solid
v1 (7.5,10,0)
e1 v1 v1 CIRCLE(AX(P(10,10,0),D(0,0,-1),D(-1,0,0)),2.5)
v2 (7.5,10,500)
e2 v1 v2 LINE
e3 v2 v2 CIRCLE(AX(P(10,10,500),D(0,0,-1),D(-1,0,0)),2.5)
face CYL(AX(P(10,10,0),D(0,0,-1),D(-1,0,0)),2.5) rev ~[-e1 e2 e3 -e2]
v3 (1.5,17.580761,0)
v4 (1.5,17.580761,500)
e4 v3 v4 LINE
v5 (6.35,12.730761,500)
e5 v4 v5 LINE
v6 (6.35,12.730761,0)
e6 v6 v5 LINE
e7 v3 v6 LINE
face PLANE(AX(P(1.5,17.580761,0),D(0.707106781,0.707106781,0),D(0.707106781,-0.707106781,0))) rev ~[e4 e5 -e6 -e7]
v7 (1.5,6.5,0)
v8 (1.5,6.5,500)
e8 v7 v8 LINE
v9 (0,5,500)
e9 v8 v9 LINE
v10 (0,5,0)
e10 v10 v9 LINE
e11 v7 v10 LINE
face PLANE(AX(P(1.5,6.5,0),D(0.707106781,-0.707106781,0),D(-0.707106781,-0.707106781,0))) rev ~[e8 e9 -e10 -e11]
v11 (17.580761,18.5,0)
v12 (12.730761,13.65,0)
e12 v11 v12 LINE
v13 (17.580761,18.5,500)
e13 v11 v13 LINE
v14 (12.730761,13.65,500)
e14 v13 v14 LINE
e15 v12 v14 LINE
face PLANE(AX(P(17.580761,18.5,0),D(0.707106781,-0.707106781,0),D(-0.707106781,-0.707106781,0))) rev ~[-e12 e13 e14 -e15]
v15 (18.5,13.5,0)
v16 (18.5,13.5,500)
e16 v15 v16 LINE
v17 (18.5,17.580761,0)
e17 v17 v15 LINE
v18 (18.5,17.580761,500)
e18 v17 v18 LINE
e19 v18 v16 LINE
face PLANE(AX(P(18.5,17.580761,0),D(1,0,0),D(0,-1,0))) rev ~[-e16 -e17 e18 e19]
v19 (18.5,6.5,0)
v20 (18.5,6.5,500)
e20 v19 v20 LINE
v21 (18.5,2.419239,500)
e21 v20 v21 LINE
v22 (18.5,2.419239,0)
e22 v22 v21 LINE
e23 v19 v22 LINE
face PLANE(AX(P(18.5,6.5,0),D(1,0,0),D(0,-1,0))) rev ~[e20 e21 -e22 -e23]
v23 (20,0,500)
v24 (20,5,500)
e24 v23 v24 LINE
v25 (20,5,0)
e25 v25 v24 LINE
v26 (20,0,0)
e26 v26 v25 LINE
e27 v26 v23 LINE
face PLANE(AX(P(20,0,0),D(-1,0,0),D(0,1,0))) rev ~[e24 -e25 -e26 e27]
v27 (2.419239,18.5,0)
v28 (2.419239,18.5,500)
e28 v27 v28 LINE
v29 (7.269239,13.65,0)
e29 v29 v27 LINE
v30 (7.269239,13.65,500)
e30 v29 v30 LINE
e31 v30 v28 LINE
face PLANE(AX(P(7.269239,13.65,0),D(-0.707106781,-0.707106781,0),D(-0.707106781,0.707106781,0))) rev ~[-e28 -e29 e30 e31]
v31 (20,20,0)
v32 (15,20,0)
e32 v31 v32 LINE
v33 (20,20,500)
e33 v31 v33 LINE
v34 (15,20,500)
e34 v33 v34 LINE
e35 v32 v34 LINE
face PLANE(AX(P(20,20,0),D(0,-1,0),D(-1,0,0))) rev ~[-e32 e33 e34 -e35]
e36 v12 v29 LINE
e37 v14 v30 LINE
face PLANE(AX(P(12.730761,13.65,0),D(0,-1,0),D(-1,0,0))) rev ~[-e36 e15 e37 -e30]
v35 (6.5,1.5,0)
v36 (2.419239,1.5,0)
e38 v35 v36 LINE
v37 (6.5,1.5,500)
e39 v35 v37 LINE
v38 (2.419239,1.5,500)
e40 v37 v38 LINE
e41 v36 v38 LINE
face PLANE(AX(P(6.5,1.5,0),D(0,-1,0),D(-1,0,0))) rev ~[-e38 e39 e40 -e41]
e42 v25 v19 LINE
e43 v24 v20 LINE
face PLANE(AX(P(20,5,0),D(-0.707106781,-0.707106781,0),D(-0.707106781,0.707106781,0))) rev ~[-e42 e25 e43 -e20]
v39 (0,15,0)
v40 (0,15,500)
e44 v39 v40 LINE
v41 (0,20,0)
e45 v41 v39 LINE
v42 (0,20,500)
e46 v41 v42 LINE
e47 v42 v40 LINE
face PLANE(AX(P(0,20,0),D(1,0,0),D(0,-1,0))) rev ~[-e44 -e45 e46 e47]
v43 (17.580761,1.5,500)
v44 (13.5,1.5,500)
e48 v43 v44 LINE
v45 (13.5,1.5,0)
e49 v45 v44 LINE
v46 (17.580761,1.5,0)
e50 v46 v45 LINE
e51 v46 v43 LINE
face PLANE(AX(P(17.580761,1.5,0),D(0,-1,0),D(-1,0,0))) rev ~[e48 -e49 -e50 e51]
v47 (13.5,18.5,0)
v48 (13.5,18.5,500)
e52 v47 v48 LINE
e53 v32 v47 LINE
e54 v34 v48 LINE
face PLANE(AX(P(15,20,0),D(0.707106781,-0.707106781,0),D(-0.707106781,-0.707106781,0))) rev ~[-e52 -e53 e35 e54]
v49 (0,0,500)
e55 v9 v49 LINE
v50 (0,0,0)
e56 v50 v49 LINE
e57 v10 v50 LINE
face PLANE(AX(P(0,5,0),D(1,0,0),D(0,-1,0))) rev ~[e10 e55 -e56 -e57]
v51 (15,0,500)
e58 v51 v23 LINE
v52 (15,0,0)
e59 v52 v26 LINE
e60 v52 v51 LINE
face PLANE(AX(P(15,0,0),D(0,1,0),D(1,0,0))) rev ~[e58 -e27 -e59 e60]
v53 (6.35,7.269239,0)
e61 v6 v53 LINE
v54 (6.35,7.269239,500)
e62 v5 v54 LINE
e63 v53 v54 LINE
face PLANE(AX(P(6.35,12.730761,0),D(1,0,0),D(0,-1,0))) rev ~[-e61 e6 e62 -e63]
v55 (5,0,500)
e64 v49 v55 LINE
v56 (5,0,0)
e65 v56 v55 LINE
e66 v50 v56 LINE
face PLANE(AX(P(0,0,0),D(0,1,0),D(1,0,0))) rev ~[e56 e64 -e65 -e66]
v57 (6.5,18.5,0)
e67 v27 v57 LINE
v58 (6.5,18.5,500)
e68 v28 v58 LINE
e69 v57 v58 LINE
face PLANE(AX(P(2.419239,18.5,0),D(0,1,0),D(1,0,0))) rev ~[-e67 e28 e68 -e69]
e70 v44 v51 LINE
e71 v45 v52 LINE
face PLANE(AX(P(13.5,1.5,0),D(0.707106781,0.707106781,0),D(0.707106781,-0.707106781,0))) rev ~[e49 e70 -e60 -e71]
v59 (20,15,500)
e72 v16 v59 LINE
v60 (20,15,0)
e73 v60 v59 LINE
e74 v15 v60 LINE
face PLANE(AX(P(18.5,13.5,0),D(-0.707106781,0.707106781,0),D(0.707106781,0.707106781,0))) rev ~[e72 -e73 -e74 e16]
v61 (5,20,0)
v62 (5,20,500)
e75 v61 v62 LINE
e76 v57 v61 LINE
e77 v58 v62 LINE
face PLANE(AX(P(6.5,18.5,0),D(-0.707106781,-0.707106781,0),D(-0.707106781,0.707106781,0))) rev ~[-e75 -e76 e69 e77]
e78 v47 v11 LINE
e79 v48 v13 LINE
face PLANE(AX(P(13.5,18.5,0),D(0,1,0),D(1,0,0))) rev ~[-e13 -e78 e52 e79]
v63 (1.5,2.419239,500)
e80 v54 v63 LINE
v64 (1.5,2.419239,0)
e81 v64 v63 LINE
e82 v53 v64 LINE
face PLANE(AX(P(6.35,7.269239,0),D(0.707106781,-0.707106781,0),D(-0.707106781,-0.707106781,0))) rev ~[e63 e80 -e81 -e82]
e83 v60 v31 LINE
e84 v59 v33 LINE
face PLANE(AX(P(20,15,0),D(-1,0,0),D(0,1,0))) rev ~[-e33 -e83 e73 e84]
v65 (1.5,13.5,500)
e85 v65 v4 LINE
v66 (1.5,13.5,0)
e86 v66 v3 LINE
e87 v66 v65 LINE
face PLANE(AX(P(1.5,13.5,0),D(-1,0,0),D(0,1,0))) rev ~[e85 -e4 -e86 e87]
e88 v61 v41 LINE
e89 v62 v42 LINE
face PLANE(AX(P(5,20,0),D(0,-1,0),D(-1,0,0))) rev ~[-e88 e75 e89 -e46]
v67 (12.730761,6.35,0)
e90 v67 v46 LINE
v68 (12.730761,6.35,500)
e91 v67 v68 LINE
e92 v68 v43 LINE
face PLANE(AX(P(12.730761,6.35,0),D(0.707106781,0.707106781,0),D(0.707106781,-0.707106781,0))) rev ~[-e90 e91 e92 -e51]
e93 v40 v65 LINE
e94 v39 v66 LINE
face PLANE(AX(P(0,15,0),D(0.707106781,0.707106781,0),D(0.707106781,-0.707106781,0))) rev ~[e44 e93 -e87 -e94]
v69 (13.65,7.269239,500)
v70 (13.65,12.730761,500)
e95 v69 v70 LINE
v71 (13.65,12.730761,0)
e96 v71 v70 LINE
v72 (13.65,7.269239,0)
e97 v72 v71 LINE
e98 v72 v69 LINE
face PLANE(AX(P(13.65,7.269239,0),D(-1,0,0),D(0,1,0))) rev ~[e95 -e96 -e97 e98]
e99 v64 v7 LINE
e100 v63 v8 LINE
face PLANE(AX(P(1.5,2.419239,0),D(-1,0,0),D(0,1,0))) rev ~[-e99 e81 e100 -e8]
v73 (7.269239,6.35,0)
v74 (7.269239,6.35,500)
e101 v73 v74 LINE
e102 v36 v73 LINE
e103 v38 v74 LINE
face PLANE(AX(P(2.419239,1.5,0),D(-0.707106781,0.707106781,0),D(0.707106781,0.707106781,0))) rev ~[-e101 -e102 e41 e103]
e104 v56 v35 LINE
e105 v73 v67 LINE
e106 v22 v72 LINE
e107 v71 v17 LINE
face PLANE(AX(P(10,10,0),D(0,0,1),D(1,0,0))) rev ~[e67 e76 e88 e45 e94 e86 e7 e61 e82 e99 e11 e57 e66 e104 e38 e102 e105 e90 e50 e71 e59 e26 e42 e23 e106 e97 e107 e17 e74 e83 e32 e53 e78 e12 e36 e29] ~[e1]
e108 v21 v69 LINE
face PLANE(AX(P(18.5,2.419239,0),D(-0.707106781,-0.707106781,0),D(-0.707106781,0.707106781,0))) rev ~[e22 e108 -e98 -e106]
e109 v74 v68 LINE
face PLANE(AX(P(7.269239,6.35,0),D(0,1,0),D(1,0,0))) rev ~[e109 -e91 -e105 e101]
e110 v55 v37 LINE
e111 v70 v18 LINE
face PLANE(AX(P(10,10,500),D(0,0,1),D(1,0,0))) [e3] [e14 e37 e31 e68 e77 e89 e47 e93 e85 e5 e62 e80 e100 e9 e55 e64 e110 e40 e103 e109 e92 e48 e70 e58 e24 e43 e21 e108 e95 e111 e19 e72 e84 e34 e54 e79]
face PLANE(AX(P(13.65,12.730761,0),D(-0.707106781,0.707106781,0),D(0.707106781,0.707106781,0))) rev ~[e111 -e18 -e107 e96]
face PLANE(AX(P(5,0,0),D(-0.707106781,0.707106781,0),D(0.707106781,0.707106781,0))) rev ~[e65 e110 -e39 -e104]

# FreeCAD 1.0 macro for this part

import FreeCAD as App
import Part
import Sketcher

V = App.Vector


def add_polygon(sketch, points):
    """Adds a closed chain of lines whose ends are joined by coincident constraints."""
    first, n = sketch.GeometryCount, len(points)
    for a, b in zip(points, points[1:] + points[:1]):
        sketch.addGeometry(Part.LineSegment(App.Vector(*a, 0), App.Vector(*b, 0)), False)
    for i in range(n):
        sketch.addConstraint(Sketcher.Constraint("Coincident", first + i, 2, first + (i + 1) % n, 1))

doc = App.newDocument("Part")
body = doc.addObject("PartDesign::Body", "Body")

# Sketch on XY plane
sketch1 = body.newObject("Sketcher::SketchObject", "Sketch")
sketch1.AttachmentSupport = (doc.getObject("XY_Plane"), [""])
sketch1.MapMode = "FlatFace"
add_polygon(sketch1, [(0, 0), (5, 0), (6.5, 1.5), (2.4, 1.5), (7.3, 6.3), (12.7, 6.3), (17.6, 1.5), (13.5, 1.5), (15, 0), (20, 0), (20, 5), (18.5, 6.5), (18.5, 2.4), (13.7, 7.3), (13.7, 12.7), (18.5, 17.6), (18.5, 13.5), (20, 15), (20, 20), (15, 20), (13.5, 18.5), (17.6, 18.5), (12.7, 13.7), (7.3, 13.7), (2.4, 18.5), (6.5, 18.5), (5, 20), (0, 20), (0, 15), (1.5, 13.5), (1.5, 17.6), (6.3, 12.7), (6.3, 7.3), (1.5, 2.4), (1.5, 6.5), (0, 5)])  # lines 0-35
sketch1.addConstraint(Sketcher.Constraint("Horizontal", 0))
sketch1.addConstraint(Sketcher.Constraint("Horizontal", 2))
sketch1.addConstraint(Sketcher.Constraint("Horizontal", 4))
sketch1.addConstraint(Sketcher.Constraint("Horizontal", 6))
sketch1.addConstraint(Sketcher.Constraint("Horizontal", 8))
sketch1.addConstraint(Sketcher.Constraint("Vertical", 9))
sketch1.addConstraint(Sketcher.Constraint("Vertical", 11))
sketch1.addConstraint(Sketcher.Constraint("Vertical", 13))
sketch1.addConstraint(Sketcher.Constraint("Vertical", 15))
sketch1.addConstraint(Sketcher.Constraint("Vertical", 17))
sketch1.addConstraint(Sketcher.Constraint("Horizontal", 18))
sketch1.addConstraint(Sketcher.Constraint("Horizontal", 20))
sketch1.addConstraint(Sketcher.Constraint("Horizontal", 22))
sketch1.addConstraint(Sketcher.Constraint("Horizontal", 24))
sketch1.addConstraint(Sketcher.Constraint("Horizontal", 26))
sketch1.addConstraint(Sketcher.Constraint("Vertical", 27))
sketch1.addConstraint(Sketcher.Constraint("Vertical", 29))
sketch1.addConstraint(Sketcher.Constraint("Vertical", 31))
sketch1.addConstraint(Sketcher.Constraint("Vertical", 33))
sketch1.addConstraint(Sketcher.Constraint("Vertical", 35))
sketch1.addConstraint(Sketcher.Constraint("Coincident", 35, 2, -1, 1))
sketch1.addConstraint(Sketcher.Constraint("PointOnObject", 7, 2, -1))
sketch1.addConstraint(Sketcher.Constraint("PointOnObject", 26, 2, -2))
sketch1.addConstraint(Sketcher.Constraint("Parallel", 1, 3))
sketch1.addConstraint(Sketcher.Constraint("Perpendicular", 3, 5))
sketch1.addConstraint(Sketcher.Constraint("Parallel", 5, 7))
sketch1.addConstraint(Sketcher.Constraint("Parallel", 7, 10))
sketch1.addConstraint(Sketcher.Constraint("Parallel", 10, 12))
sketch1.addConstraint(Sketcher.Constraint("Perpendicular", 12, 14))
sketch1.addConstraint(Sketcher.Constraint("Parallel", 14, 16))
sketch1.addConstraint(Sketcher.Constraint("Parallel", 16, 19))
sketch1.addConstraint(Sketcher.Constraint("Parallel", 19, 21))
sketch1.addConstraint(Sketcher.Constraint("Perpendicular", 21, 23))
sketch1.addConstraint(Sketcher.Constraint("Parallel", 23, 25))
sketch1.addConstraint(Sketcher.Constraint("Parallel", 25, 28))
sketch1.addConstraint(Sketcher.Constraint("Parallel", 28, 30))
sketch1.addConstraint(Sketcher.Constraint("Perpendicular", 30, 32))
sketch1.addConstraint(Sketcher.Constraint("Parallel", 32, 34))
sketch1.addConstraint(Sketcher.Constraint("Horizontal", 2, 2, 5, 2))
sketch1.addConstraint(Sketcher.Constraint("Horizontal", 20, 2, 23, 2))
sketch1.addConstraint(Sketcher.Constraint("Horizontal", 18, 2, 25, 2))
sketch1.addConstraint(Sketcher.Constraint("Horizontal", 16, 2, 27, 2))
sketch1.addConstraint(Sketcher.Constraint("Horizontal", 15, 2, 28, 2))
sketch1.addConstraint(Sketcher.Constraint("Horizontal", 14, 2, 29, 2))
sketch1.addConstraint(Sketcher.Constraint("Horizontal", 13, 2, 30, 2))
sketch1.addConstraint(Sketcher.Constraint("Horizontal", 12, 2, 31, 2))
sketch1.addConstraint(Sketcher.Constraint("Horizontal", 11, 2, 32, 2))
sketch1.addConstraint(Sketcher.Constraint("Horizontal", 10, 2, 33, 2))
sketch1.addConstraint(Sketcher.Constraint("Horizontal", 9, 2, 34, 2))
sketch1.addConstraint(Sketcher.Constraint("Vertical", 11, 2, 14, 2))
sketch1.addConstraint(Sketcher.Constraint("Vertical", 9, 2, 16, 2))
sketch1.addConstraint(Sketcher.Constraint("Vertical", 7, 2, 18, 2))
sketch1.addConstraint(Sketcher.Constraint("Vertical", 6, 2, 19, 2))
sketch1.addConstraint(Sketcher.Constraint("Vertical", 5, 2, 20, 2))
sketch1.addConstraint(Sketcher.Constraint("Vertical", 4, 2, 21, 2))
sketch1.addConstraint(Sketcher.Constraint("Vertical", 3, 2, 22, 2))
sketch1.addConstraint(Sketcher.Constraint("Vertical", 1, 2, 24, 2))
sketch1.addConstraint(Sketcher.Constraint("Equal", 2, 6))
sketch1.addConstraint(Sketcher.Constraint("Equal", 0, 8))
sketch1.addConstraint(Sketcher.Constraint("Equal", 26, 9))
sketch1.addConstraint(Sketcher.Constraint("Equal", 24, 11))
sketch1.addConstraint(Sketcher.Constraint("Equal", 22, 13))
sketch1.addConstraint(Sketcher.Constraint("Equal", 11, 15))
sketch1.addConstraint(Sketcher.Constraint("Equal", 9, 17))
sketch1.addConstraint(Sketcher.Constraint("Equal", 7, 10))
sketch1.addConstraint(Sketcher.Constraint("Equal", 5, 12))
sketch1.addConstraint(Sketcher.Constraint("DistanceX", 0, 1, 0, 2, 5.0))
sketch1.addConstraint(Sketcher.Constraint("DistanceX", -1, 1, 7, 2, 15.0))
sketch1.addConstraint(Sketcher.Constraint("DistanceX", 1, 2, 6, 2, 7.0))
sketch1.addConstraint(Sketcher.Constraint("DistanceY", 3, 2, 22, 2, 7.3))
sketch1.addConstraint(Sketcher.Constraint("DistanceX", 2, 2, 2, 1, 4.080761))
pad1 = body.newObject("PartDesign::Pad", "Pad")
pad1.Profile = sketch1
pad1.Length = 500

# Sketch on XY plane
sketch2 = body.newObject("Sketcher::SketchObject", "Sketch001")
sketch2.AttachmentSupport = (doc.getObject("XY_Plane"), [""])
sketch2.MapMode = "FlatFace"
sketch2.addGeometry(Part.Circle(V(10, 10, 0), V(0, 0, 1), 2.5), False)
sketch2.addConstraint(Sketcher.Constraint("Diameter", 0, 5.0))
sketch2.addConstraint(Sketcher.Constraint("DistanceX", -1, 1, 0, 3, 10.0))
sketch2.addConstraint(Sketcher.Constraint("DistanceY", -1, 1, 0, 3, 10.0))
pocket1 = body.newObject("PartDesign::Pocket", "Pocket")
pocket1.Profile = sketch2
pocket1.Type = "ThroughAll"
pocket1.Reversed = True

doc.recompute()
